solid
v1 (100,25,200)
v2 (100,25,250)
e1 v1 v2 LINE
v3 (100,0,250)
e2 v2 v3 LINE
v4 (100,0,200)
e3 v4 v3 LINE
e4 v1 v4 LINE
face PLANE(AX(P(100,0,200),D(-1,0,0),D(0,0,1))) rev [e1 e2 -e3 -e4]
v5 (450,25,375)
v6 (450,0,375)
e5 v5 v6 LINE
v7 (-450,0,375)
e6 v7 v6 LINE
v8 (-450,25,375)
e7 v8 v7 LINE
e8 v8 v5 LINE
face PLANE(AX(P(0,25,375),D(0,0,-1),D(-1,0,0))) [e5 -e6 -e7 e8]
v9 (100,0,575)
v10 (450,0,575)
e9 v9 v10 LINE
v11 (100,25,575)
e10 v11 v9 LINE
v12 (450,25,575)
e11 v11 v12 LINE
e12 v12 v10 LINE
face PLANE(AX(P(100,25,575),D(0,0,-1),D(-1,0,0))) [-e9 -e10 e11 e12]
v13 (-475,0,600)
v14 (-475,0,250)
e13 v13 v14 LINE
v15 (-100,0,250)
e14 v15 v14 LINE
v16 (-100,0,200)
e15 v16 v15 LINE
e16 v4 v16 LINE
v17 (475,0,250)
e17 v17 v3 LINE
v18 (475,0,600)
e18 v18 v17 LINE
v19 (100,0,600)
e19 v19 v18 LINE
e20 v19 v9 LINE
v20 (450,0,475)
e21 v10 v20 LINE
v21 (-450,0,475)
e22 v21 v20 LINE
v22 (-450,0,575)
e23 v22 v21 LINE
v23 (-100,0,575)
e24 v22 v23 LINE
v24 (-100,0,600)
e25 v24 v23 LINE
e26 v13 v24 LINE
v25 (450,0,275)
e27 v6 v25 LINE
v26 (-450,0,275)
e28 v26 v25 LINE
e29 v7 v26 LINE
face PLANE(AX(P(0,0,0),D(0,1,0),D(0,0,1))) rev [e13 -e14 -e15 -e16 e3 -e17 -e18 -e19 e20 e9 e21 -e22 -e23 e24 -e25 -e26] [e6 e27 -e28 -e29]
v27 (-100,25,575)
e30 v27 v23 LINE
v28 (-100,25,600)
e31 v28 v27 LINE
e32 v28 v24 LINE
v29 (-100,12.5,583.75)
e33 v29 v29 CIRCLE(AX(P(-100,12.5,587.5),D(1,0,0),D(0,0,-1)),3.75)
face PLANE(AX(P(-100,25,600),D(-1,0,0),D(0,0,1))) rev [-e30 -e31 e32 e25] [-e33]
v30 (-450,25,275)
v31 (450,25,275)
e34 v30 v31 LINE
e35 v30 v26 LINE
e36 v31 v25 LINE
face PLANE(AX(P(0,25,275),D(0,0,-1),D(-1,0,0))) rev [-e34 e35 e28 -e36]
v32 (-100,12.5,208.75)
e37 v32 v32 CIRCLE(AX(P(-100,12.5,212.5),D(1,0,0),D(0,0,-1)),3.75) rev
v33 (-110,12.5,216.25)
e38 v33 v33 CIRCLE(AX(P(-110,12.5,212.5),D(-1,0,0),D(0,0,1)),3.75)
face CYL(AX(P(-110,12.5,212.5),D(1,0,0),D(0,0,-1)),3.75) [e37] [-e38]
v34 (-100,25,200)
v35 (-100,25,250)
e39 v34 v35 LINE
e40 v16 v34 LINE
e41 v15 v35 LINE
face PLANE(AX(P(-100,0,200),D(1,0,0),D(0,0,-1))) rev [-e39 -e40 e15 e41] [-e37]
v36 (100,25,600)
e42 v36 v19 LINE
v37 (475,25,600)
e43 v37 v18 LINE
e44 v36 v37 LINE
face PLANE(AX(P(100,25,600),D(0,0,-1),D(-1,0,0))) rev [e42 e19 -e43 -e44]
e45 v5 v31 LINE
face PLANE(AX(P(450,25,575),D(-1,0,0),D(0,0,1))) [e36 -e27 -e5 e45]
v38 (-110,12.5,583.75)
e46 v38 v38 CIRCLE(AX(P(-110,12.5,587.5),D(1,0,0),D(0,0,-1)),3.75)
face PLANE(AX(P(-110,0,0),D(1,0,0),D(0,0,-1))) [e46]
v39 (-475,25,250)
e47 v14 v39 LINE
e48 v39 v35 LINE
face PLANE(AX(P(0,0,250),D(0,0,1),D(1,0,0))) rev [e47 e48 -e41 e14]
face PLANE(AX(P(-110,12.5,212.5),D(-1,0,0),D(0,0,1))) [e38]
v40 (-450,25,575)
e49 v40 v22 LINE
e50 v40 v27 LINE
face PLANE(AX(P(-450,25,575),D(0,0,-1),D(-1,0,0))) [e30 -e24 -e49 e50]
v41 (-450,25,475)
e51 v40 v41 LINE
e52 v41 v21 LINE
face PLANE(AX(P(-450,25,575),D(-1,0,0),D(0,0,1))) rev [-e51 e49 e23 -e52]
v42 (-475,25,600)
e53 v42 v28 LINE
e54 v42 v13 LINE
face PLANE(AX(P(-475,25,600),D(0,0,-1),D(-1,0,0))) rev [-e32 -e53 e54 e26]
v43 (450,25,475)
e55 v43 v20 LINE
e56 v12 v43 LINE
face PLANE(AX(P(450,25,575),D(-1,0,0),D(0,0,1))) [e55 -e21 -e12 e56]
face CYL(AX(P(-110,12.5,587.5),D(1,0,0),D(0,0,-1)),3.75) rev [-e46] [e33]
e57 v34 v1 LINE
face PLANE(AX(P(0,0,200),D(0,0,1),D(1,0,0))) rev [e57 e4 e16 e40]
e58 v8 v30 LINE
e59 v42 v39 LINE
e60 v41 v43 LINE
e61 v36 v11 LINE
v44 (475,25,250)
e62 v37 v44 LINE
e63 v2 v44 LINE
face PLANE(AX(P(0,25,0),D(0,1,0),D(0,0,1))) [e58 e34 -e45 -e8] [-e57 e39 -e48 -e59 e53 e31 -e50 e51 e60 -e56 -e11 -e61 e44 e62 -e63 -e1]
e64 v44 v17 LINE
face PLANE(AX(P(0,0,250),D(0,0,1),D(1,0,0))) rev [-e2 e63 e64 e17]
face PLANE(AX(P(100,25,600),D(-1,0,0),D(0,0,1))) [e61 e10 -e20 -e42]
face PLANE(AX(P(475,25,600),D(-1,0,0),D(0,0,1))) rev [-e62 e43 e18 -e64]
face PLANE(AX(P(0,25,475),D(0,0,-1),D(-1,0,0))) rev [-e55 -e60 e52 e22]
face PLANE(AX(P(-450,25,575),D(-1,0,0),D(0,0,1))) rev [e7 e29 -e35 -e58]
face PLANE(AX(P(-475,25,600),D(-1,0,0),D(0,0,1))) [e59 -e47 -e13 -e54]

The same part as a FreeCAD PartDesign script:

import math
import FreeCAD as App
import Part
import Sketcher
Q = App.Units.Quantity


def add_polygon(sketch, points):
    """Adds a closed chain of lines whose ends are joined by coincident constraints."""
    first, n = sketch.GeometryCount, len(points)
    for a, b in zip(points, points[1:] + points[:1]):
        sketch.addGeometry(Part.LineSegment(App.Vector(*a, 0), App.Vector(*b, 0)), False)
    for i in range(n):
        sketch.addConstraint(Sketcher.Constraint("Coincident", first + i, 2, first + (i + 1) % n, 1))

doc = App.newDocument("Part")
body = doc.addObject("PartDesign::Body", "Body")

# Sketch on XZ plane
sketch1 = body.newObject("Sketcher::SketchObject", "Sketch")
sketch1.AttachmentSupport = (doc.getObject("XZ_Plane"), [""])
sketch1.MapMode = "FlatFace"
add_polygon(sketch1, [(450, 475), (450, 575), (100, 575), (100, 600), (475, 600), (475, -600), (-475, -600), (-475, 600), (-100, 600), (-100, 575), (-450, 575), (-450, 475)])  # lines 0-11
add_polygon(sketch1, [(450, 375), (-450, 375), (-450, 275), (450, 275)])  # lines 12-15
add_polygon(sketch1, [(450, 175), (-450, 175), (-450, -125), (450, -125)])  # lines 16-19
add_polygon(sketch1, [(450, -275), (-450, -275), (-450, -425), (450, -425)])  # lines 20-23
sketch1.addConstraint(Sketcher.Constraint("Vertical", 0))
sketch1.addConstraint(Sketcher.Constraint("Horizontal", 1))
sketch1.addConstraint(Sketcher.Constraint("Vertical", 2))
sketch1.addConstraint(Sketcher.Constraint("Horizontal", 3))
sketch1.addConstraint(Sketcher.Constraint("Vertical", 4))
sketch1.addConstraint(Sketcher.Constraint("Horizontal", 5))
sketch1.addConstraint(Sketcher.Constraint("Vertical", 6))
sketch1.addConstraint(Sketcher.Constraint("Horizontal", 7))
sketch1.addConstraint(Sketcher.Constraint("Vertical", 8))
sketch1.addConstraint(Sketcher.Constraint("Horizontal", 9))
sketch1.addConstraint(Sketcher.Constraint("Vertical", 10))
sketch1.addConstraint(Sketcher.Constraint("Horizontal", 11))
sketch1.addConstraint(Sketcher.Constraint("Horizontal", 12))
sketch1.addConstraint(Sketcher.Constraint("Vertical", 13))
sketch1.addConstraint(Sketcher.Constraint("Horizontal", 14))
sketch1.addConstraint(Sketcher.Constraint("Vertical", 15))
sketch1.addConstraint(Sketcher.Constraint("Horizontal", 16))
sketch1.addConstraint(Sketcher.Constraint("Vertical", 17))
sketch1.addConstraint(Sketcher.Constraint("Horizontal", 18))
sketch1.addConstraint(Sketcher.Constraint("Vertical", 19))
sketch1.addConstraint(Sketcher.Constraint("Horizontal", 20))
sketch1.addConstraint(Sketcher.Constraint("Vertical", 21))
sketch1.addConstraint(Sketcher.Constraint("Horizontal", 22))
sketch1.addConstraint(Sketcher.Constraint("Vertical", 23))
sketch1.addConstraint(Sketcher.Constraint("Symmetric", 3, 2, 5, 2, -1, 1))
sketch1.addConstraint(Sketcher.Constraint("Symmetric", 14, 2, 20, 2, -1, 1))
sketch1.addConstraint(Sketcher.Constraint("Symmetric", 2, 2, 7, 2, -2))
sketch1.addConstraint(Sketcher.Constraint("Symmetric", 0, 2, 9, 2, -2))
sketch1.addConstraint(Sketcher.Constraint("Vertical", 10, 2, 12, 2))
sketch1.addConstraint(Sketcher.Constraint("Vertical", 11, 2, 14, 2))
sketch1.addConstraint(Sketcher.Constraint("Vertical", 13, 2, 16, 2))
sketch1.addConstraint(Sketcher.Constraint("Vertical", 15, 2, 18, 2))
sketch1.addConstraint(Sketcher.Constraint("Vertical", 19, 2, 22, 2))
sketch1.addConstraint(Sketcher.Constraint("Equal", 10, 13))
sketch1.addConstraint(Sketcher.Constraint("DistanceX", 1, 2, 1, 1, Q("350 mm")))
sketch1.addConstraint(Sketcher.Constraint("DistanceX", 3, 1, 3, 2, Q("375 mm")))
sketch1.addConstraint(Sketcher.Constraint("DistanceX", 5, 2, 5, 1, Q("950 mm")))
sketch1.addConstraint(Sketcher.Constraint("DistanceY", 0, 1, 0, 2, Q("100 mm")))
sketch1.addConstraint(Sketcher.Constraint("DistanceY", 2, 1, 2, 2, Q("25 mm")))
sketch1.addConstraint(Sketcher.Constraint("DistanceY", 4, 2, 4, 1, Q("1200 mm")))
sketch1.addConstraint(Sketcher.Constraint("DistanceY", 17, 2, 17, 1, Q("300 mm")))
sketch1.addConstraint(Sketcher.Constraint("DistanceY", 21, 2, 21, 1, Q("150 mm")))
sketch1.addConstraint(Sketcher.Constraint("DistanceY", -1, 1, 12, 2, Q("375 mm")))
sketch1.addConstraint(Sketcher.Constraint("DistanceY", -1, 1, 16, 2, Q("175 mm")))
pad1 = body.newObject("PartDesign::Pad", "Pad")
pad1.Profile = sketch1
pad1.Length = 25
pad1.Reversed = True

# Sketch on YZ plane
sketch2 = body.newObject("Sketcher::SketchObject", "Sketch001")
sketch2.AttachmentSupport = (doc.getObject("YZ_Plane"), [""])
sketch2.MapMode = "FlatFace"
sketch2.AttachmentOffset = App.Placement(App.Vector(0, 0, -100), App.Rotation())
sketch2.addGeometry(Part.ArcOfCircle(Part.Circle(App.Vector(12.5, 587.5, 0), App.Vector(0, 0, 1), 3.8), math.radians(-90), math.radians(45)), False)
sketch2.addGeometry(Part.ArcOfCircle(Part.Circle(App.Vector(12.5, 587.5, 0), App.Vector(0, 0, 1), 3.7), math.radians(45), math.radians(225)), False)
sketch2.addGeometry(Part.ArcOfCircle(Part.Circle(App.Vector(12.5, 587.5, 0), App.Vector(0, 0, 1), 3.7), math.radians(-135), math.radians(-90)), False)
sketch2.addConstraint(Sketcher.Constraint("Tangent", 0, 2, 1, 1))
sketch2.addConstraint(Sketcher.Constraint("Tangent", 1, 2, 2, 1))
sketch2.addConstraint(Sketcher.Constraint("Tangent", 2, 2, 0, 1))
sketch2.addConstraint(Sketcher.Constraint("Vertical", 1, 3, 2, 2))
sketch2.addConstraint(Sketcher.Constraint("Radius", 0, Q("3.75 mm")))
sketch2.addConstraint(Sketcher.Constraint("DistanceX", -1, 1, 0, 3, Q("12.5 mm")))
sketch2.addConstraint(Sketcher.Constraint("DistanceY", -1, 1, 0, 3, Q("587.5 mm")))
sketch2.addConstraint(Sketcher.Constraint("DistanceX", 1, 2, 0, 2, Q("5.303301 mm")))
sketch2.addConstraint(Sketcher.Constraint("DistanceX", -1, 1, 0, 2, Q("15.15165 mm")))
pocket1 = body.newObject("PartDesign::Pocket", "Pocket")
pocket1.Profile = sketch2
pocket1.Length = 10

# Sketch on XY plane
sketch3 = body.newObject("Sketcher::SketchObject", "Sketch002")
sketch3.AttachmentSupport = (doc.getObject("XY_Plane"), [""])
sketch3.MapMode = "FlatFace"
sketch3.AttachmentOffset = App.Placement(App.Vector(0, 0, -600), App.Rotation())
add_polygon(sketch3, [(475, 25), (475, 0), (-475, 0), (-475, 25)])  # lines 0-3
sketch3.addConstraint(Sketcher.Constraint("Vertical", 0))
sketch3.addConstraint(Sketcher.Constraint("Horizontal", 1))
sketch3.addConstraint(Sketcher.Constraint("Vertical", 2))
sketch3.addConstraint(Sketcher.Constraint("Horizontal", 3))
sketch3.addConstraint(Sketcher.Constraint("Symmetric", 0, 2, 1, 2, -1, 1))
sketch3.addConstraint(Sketcher.Constraint("DistanceX", 1, 2, 1, 1, Q("950 mm")))
sketch3.addConstraint(Sketcher.Constraint("DistanceY", 0, 2, 0, 1, Q("25 mm")))
pocket2 = body.newObject("PartDesign::Pocket", "Pocket001")
pocket2.Profile = sketch3
pocket2.Length = 850
pocket2.Reversed = True

# Sketch on XY plane
sketch4 = body.newObject("Sketcher::SketchObject", "Sketch003")
sketch4.AttachmentSupport = (doc.getObject("XY_Plane"), [""])
sketch4.MapMode = "FlatFace"
sketch4.AttachmentOffset = App.Placement(App.Vector(0, 0, 250), App.Rotation())
add_polygon(sketch4, [(100, 25), (100, 0), (-100, 0), (-100, 25)])  # lines 0-3
sketch4.addConstraint(Sketcher.Constraint("Vertical", 0))
sketch4.addConstraint(Sketcher.Constraint("Horizontal", 1))
sketch4.addConstraint(Sketcher.Constraint("Vertical", 2))
sketch4.addConstraint(Sketcher.Constraint("Horizontal", 3))
sketch4.addConstraint(Sketcher.Constraint("Symmetric", 0, 2, 1, 2, -1, 1))
sketch4.addConstraint(Sketcher.Constraint("DistanceX", 1, 2, 1, 1, Q("200 mm")))
sketch4.addConstraint(Sketcher.Constraint("DistanceY", 0, 2, 0, 1, Q("25 mm")))
pad2 = body.newObject("PartDesign::Pad", "Pad001")
pad2.Profile = sketch4
pad2.Length = 50
pad2.Reversed = True

# Sketch on YZ plane
sketch5 = body.newObject("Sketcher::SketchObject", "Sketch004")
sketch5.AttachmentSupport = (doc.getObject("YZ_Plane"), [""])
sketch5.MapMode = "FlatFace"
sketch5.AttachmentOffset = App.Placement(App.Vector(0, 0, -100), App.Rotation())
sketch5.addGeometry(Part.Circle(App.Vector(12.5, 212.5, 0), App.Vector(0, 0, 1), 3.8), False)
sketch5.addConstraint(Sketcher.Constraint("Diameter", 0, Q("7.5 mm")))
sketch5.addConstraint(Sketcher.Constraint("DistanceX", -1, 1, 0, 3, Q("12.5 mm")))
sketch5.addConstraint(Sketcher.Constraint("DistanceY", -1, 1, 0, 3, Q("212.5 mm")))
pad3 = body.newObject("PartDesign::Pad", "Pad002")
pad3.Profile = sketch5
pad3.Length = 10
pad3.Reversed = True

doc.recompute()
